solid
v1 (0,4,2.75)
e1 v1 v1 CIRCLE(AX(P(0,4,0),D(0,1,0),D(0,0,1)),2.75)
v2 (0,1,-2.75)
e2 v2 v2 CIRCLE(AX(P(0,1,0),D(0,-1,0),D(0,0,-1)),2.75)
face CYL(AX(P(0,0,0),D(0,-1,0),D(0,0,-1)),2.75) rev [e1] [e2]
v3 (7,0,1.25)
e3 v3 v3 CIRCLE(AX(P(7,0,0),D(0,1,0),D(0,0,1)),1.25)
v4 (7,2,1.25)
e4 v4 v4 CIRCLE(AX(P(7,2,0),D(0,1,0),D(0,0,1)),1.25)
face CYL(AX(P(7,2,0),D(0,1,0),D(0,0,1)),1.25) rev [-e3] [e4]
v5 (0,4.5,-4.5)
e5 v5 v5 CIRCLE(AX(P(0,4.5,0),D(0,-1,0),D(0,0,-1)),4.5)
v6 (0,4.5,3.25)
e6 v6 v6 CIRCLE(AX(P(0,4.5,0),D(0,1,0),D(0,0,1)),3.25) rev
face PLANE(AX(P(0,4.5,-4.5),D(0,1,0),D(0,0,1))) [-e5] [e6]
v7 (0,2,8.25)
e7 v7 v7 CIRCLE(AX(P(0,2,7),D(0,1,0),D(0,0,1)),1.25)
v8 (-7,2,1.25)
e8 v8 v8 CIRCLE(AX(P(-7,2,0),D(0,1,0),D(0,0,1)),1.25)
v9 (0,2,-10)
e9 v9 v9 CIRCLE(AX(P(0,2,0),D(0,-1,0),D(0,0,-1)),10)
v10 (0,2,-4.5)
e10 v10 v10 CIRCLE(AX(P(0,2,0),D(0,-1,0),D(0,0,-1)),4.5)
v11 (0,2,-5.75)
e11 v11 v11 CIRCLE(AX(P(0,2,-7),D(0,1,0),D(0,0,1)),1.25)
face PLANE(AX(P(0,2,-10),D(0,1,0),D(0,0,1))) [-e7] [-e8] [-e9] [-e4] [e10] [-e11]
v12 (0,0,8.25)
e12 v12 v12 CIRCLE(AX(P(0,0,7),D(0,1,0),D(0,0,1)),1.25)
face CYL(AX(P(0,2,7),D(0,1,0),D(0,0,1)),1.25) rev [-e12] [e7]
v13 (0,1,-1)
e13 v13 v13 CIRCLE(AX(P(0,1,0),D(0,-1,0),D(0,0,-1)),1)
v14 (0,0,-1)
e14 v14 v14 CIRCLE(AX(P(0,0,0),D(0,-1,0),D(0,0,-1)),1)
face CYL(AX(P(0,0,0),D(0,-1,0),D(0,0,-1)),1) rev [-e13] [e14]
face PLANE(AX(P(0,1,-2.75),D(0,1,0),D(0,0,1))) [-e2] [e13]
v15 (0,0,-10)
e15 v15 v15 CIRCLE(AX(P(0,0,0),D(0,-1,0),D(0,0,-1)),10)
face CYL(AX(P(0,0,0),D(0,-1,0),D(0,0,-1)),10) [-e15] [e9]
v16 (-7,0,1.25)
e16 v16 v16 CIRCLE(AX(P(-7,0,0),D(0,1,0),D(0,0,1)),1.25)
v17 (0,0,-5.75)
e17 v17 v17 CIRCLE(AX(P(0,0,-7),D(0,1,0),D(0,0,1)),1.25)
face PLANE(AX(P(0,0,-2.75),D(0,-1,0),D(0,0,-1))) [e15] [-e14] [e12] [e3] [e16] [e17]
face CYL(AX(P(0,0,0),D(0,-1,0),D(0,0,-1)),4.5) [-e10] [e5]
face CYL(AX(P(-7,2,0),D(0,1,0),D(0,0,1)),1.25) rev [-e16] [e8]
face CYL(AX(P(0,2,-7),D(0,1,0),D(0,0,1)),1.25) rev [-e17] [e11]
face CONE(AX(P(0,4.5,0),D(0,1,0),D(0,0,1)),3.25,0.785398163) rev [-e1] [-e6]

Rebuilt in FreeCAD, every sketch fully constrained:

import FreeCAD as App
import Part
import Sketcher
from FreeCAD import Vector
Q = App.Units.Quantity


def edges_at(feature, points):
    """Names of the edges that pass closest to the given points."""
    edges = feature.Shape.Edges
    near = lambda p: min(range(len(edges)), key=lambda i: edges[i].distToShape(Part.Vertex(*p))[0])
    return sorted({f"Edge{near(p) + 1}" for p in points})


def add_polygon(sketch, points):
    """Adds a closed chain of lines whose ends are joined by coincident constraints."""
    first, n = sketch.GeometryCount, len(points)
    for a, b in zip(points, points[1:] + points[:1]):
        sketch.addGeometry(Part.LineSegment(App.Vector(*a, 0), App.Vector(*b, 0)), False)
    for i in range(n):
        sketch.addConstraint(Sketcher.Constraint("Coincident", first + i, 2, first + (i + 1) % n, 1))

doc = App.newDocument("Part")
body = doc.addObject("PartDesign::Body", "Body")

sketch1 = body.newObject("Sketcher::SketchObject", "Sketch")
sketch1.AttachmentSupport = (doc.getObject("YZ_Plane"), [""])
sketch1.MapMode = "FlatFace"
add_polygon(sketch1, [(0, -10), (2, -10), (2, -4.5), (4.5, -4.5), (4.5, -2.75), (1, -2.75), (1, -1), (0, -1)])
sketch1.addConstraint([
    Sketcher.Constraint("Horizontal", 0),
    Sketcher.Constraint("Vertical", 1),
    Sketcher.Constraint("Horizontal", 2),
    Sketcher.Constraint("Vertical", 3),
    Sketcher.Constraint("Horizontal", 4),
    Sketcher.Constraint("Vertical", 5),
    Sketcher.Constraint("Horizontal", 6),
    Sketcher.Constraint("Vertical", 7),
    Sketcher.Constraint("PointOnObject", 6, 2, -2),
    Sketcher.Constraint("Equal", 3, 5),
    Sketcher.Constraint("DistanceX", 0, 1, 0, 2, Q("2 mm")),
    Sketcher.Constraint("DistanceX", 6, 2, 6, 1, Q("1 mm")),
    Sketcher.Constraint("DistanceY", 7, 2, 7, 1, Q("9 mm")),
    Sketcher.Constraint("DistanceX", 2, 1, 2, 2, Q("2.5 mm")),
    Sketcher.Constraint("DistanceY", 1, 1, 1, 2, Q("5.5 mm")),
    Sketcher.Constraint("DistanceY", 0, 2, -1, 1, Q("10 mm")),
])
revolution = body.newObject("PartDesign::Revolution", "Revolution")
revolution.Profile = sketch1
revolution.ReferenceAxis = (sketch1, ["H_Axis"])
revolution.Angle = 360

sketch2 = body.newObject("Sketcher::SketchObject", "Sketch001")
sketch2.AttachmentSupport = (doc.getObject("XZ_Plane"), [""])
sketch2.MapMode = "FlatFace"
sketch2.AttachmentOffset = App.Placement(Vector(0, 0, -2), App.Rotation())
sketch2.addGeometry([
    Part.Circle(Vector(0, 7, 0), Vector(0, 0, 1), 1.25),
    Part.Circle(Vector(0, -7, 0), Vector(0, 0, 1), 1.25),
    Part.Circle(Vector(-7, 0, 0), Vector(0, 0, 1), 1.25),
    Part.Circle(Vector(7, 0, 0), Vector(0, 0, 1), 1.25),
], False)
sketch2.addConstraint([
    Sketcher.Constraint("Equal", 0, 1),
    Sketcher.Constraint("Equal", 1, 2),
    Sketcher.Constraint("Equal", 2, 3),
    Sketcher.Constraint("Symmetric", 0, 3, 1, 3, -1, 1),
    Sketcher.Constraint("Symmetric", 2, 3, 3, 3, -1, 1),
    Sketcher.Constraint("PointOnObject", 0, 3, -2),
    Sketcher.Constraint("PointOnObject", 2, 3, -1),
    Sketcher.Constraint("Diameter", 0, Q("2.5 mm")),
    Sketcher.Constraint("DistanceY", -1, 1, 0, 3, Q("7 mm")),
    Sketcher.Constraint("DistanceX", 2, 3, -1, 1, Q("7 mm")),
])
doc.recompute()
hole = body.newObject("PartDesign::Hole", "Hole")
hole.Profile = sketch2
hole.ThreadType = "None"
hole.Diameter = 2.5
hole.DepthType = "ThroughAll"
hole.Reversed = True
doc.recompute()

chamfer = body.newObject("PartDesign::Chamfer", "Chamfer")
chamfer.Base = (hole, edges_at(hole, [(0, 4.5, 2.75)]))
chamfer.Size = 0.5

doc.recompute()
